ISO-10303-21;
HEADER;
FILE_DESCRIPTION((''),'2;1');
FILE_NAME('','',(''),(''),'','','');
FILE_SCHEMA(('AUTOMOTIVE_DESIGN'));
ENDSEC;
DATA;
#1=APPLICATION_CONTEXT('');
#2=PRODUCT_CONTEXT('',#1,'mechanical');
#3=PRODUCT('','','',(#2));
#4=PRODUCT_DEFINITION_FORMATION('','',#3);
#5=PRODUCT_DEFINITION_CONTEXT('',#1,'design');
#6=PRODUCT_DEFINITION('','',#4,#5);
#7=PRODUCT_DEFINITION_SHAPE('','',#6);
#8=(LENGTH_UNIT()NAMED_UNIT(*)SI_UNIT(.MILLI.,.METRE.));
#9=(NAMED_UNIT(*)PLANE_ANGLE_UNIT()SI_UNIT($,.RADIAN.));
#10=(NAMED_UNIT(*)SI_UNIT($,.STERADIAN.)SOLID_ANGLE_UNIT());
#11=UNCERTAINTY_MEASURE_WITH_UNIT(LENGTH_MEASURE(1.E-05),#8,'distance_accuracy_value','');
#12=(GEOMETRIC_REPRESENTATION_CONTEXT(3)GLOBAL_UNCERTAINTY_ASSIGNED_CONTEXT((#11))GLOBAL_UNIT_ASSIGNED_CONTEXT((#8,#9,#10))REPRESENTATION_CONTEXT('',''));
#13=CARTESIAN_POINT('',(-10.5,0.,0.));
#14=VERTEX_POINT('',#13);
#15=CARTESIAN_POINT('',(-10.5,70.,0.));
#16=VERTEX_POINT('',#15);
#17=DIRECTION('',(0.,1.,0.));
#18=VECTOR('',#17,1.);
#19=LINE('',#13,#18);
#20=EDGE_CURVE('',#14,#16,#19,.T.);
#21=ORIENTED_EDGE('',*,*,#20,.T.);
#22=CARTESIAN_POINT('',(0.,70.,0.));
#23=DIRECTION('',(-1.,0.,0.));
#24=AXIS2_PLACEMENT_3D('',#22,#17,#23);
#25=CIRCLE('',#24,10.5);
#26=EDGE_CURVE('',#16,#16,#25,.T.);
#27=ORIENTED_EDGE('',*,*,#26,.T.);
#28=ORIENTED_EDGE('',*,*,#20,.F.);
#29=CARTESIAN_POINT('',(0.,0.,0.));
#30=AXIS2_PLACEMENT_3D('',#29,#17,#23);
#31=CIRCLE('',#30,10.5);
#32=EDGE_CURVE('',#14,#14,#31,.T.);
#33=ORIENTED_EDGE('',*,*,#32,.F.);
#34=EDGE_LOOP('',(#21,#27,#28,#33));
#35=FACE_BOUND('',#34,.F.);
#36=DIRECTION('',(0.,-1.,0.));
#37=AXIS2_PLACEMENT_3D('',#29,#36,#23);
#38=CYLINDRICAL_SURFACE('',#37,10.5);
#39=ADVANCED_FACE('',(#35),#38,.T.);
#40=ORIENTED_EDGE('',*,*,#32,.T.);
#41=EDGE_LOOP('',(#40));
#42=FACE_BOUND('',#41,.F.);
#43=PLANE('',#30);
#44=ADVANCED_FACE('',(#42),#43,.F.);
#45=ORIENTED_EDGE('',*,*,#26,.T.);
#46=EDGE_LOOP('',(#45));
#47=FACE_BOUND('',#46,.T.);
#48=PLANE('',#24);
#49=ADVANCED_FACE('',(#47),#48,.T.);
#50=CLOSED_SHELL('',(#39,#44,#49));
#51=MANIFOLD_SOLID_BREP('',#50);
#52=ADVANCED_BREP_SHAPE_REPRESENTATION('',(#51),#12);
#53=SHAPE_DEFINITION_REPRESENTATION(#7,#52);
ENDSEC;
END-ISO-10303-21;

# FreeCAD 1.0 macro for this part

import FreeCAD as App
import Part
import Sketcher

V = App.Vector
Q = App.Units.Quantity

doc = App.newDocument("Part")
body = doc.addObject("PartDesign::Body", "Body")

# Sketch on XZ plane
sketch1 = doc.addObject("Sketcher::SketchObject", "Sketch")
body.addObject(sketch1)
sketch1.AttachmentSupport = (doc.XZ_Plane, [""])
sketch1.MapMode = "FlatFace"
sketch1.addGeometry(Part.Circle(V(0, 0, 0), V(0, 0, 1), 10), False)
sketch1.addConstraint(Sketcher.Constraint("Coincident", 0, 3, -1, 1))
sketch1.addConstraint(Sketcher.Constraint("Diameter", 0, Q("21 mm")))
pad1 = doc.addObject("PartDesign::Pad", "Pad")
body.addObject(pad1)
pad1.Profile = sketch1
pad1.Length = 70
pad1.Reversed = True

doc.recompute()
